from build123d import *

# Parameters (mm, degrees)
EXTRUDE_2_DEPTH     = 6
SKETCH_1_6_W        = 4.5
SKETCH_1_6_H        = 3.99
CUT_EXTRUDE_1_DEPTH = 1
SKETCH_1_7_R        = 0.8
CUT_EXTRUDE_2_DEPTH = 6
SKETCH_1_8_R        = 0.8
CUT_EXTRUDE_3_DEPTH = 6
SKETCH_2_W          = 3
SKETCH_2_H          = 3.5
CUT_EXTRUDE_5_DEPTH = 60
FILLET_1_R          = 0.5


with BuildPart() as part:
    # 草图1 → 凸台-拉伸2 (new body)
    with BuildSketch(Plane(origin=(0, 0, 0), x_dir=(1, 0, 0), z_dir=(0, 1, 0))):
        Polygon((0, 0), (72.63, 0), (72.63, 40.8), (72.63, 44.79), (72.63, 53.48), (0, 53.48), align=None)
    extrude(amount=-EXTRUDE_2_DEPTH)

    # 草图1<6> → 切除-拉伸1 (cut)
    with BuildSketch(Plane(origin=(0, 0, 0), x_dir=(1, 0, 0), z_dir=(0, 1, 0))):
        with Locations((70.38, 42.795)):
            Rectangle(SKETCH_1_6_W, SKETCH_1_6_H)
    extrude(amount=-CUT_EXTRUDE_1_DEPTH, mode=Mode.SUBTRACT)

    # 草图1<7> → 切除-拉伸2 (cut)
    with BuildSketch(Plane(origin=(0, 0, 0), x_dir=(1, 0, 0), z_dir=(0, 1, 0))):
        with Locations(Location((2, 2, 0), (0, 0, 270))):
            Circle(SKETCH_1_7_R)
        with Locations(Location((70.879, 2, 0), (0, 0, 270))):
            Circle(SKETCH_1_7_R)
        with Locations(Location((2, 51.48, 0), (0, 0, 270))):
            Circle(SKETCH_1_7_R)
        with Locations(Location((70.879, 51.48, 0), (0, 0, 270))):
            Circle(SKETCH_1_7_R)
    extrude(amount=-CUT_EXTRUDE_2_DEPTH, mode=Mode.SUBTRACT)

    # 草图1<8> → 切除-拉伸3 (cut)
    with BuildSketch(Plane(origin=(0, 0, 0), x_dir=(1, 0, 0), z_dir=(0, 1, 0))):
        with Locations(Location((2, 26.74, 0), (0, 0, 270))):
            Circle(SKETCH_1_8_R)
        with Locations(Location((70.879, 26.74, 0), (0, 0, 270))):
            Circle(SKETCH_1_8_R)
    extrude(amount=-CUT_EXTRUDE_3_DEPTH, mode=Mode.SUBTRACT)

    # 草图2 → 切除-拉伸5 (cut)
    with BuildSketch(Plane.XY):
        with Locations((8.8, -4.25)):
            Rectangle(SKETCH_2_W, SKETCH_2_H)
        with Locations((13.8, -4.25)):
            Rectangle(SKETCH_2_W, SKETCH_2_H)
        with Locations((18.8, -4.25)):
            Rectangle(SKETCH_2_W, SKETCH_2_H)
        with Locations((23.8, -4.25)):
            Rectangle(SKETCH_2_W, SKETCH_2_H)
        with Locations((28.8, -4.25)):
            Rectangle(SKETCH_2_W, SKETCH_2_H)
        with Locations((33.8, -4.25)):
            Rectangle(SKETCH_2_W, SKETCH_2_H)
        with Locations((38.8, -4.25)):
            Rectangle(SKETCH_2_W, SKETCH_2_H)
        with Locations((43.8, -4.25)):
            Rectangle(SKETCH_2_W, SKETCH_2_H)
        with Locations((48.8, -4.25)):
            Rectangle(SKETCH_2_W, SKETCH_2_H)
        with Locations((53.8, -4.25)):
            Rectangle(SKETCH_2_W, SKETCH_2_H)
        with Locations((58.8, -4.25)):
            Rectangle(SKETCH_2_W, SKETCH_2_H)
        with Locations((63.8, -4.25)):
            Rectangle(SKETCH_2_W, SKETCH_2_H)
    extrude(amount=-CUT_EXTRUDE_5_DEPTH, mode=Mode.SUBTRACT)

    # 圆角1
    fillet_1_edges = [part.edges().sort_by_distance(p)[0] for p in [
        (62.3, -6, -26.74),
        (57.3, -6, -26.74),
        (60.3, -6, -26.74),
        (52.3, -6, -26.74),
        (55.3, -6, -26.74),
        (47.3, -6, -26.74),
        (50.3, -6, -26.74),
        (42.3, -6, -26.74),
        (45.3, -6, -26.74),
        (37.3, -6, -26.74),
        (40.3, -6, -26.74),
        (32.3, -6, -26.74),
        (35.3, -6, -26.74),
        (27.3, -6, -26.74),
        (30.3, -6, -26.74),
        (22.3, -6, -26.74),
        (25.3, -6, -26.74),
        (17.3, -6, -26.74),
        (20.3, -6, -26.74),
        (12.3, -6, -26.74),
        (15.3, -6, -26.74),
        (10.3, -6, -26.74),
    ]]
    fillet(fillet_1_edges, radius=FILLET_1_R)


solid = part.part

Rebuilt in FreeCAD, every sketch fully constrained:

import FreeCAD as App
import Part
import Sketcher
from FreeCAD import Vector
Q = App.Units.Quantity


def edges_at(feature, points):
    """Names of the edges that pass closest to the given points."""
    edges = feature.Shape.Edges
    near = lambda p: min(range(len(edges)), key=lambda i: edges[i].distToShape(Part.Vertex(*p))[0])
    return sorted({f"Edge{near(p) + 1}" for p in points})


def add_polygon(sketch, points):
    """Adds a closed chain of lines whose ends are joined by coincident constraints."""
    first, n = sketch.GeometryCount, len(points)
    for a, b in zip(points, points[1:] + points[:1]):
        sketch.addGeometry(Part.LineSegment(App.Vector(*a, 0), App.Vector(*b, 0)), False)
    for i in range(n):
        sketch.addConstraint(Sketcher.Constraint("Coincident", first + i, 2, first + (i + 1) % n, 1))

doc = App.newDocument("Part")
body = doc.addObject("PartDesign::Body", "Body")

sketch1 = doc.addObject("Sketcher::SketchObject", "Sketch")
body.addObject(sketch1)
sketch1.AttachmentSupport = (doc.XZ_Plane, [""])
sketch1.MapMode = "FlatFace"
add_polygon(sketch1, [(0, 0), (73, 0), (73, -53), (0, -53)])
sketch1.addConstraint([
    Sketcher.Constraint("Horizontal", 0),
    Sketcher.Constraint("Vertical", 1),
    Sketcher.Constraint("Horizontal", 2),
    Sketcher.Constraint("Vertical", 3),
    Sketcher.Constraint("Coincident", 3, 2, -1, 1),
    Sketcher.Constraint("DistanceX", 0, 1, 0, 2, Q("72.63 mm")),
    Sketcher.Constraint("DistanceY", 1, 2, 1, 1, Q("53.48 mm")),
])
pad1 = doc.addObject("PartDesign::Pad", "Pad")
body.addObject(pad1)
pad1.Profile = sketch1
pad1.Length = 6

sketch2 = doc.addObject("Sketcher::SketchObject", "Sketch001")
body.addObject(sketch2)
sketch2.AttachmentSupport = (doc.XZ_Plane, [""])
sketch2.MapMode = "FlatFace"
add_polygon(sketch2, [(68.1, -44.8), (68.1, -40.8), (72.6, -40.8), (72.6, -44.8)])
sketch2.addConstraint([
    Sketcher.Constraint("Vertical", 0),
    Sketcher.Constraint("Horizontal", 1),
    Sketcher.Constraint("Vertical", 2),
    Sketcher.Constraint("Horizontal", 3),
    Sketcher.Constraint("DistanceX", 1, 1, 1, 2, Q("4.5 mm")),
    Sketcher.Constraint("DistanceY", 0, 1, 0, 2, Q("3.99 mm")),
    Sketcher.Constraint("DistanceY", 0, 2, -1, 1, Q("40.8 mm")),
    Sketcher.Constraint("DistanceX", -1, 1, 0, 2, Q("68.13 mm")),
])
pocket1 = doc.addObject("PartDesign::Pocket", "Pocket")
body.addObject(pocket1)
pocket1.Profile = sketch2
pocket1.Length = 1
pocket1.Reversed = True

sketch3 = doc.addObject("Sketcher::SketchObject", "Sketch002")
body.addObject(sketch3)
sketch3.AttachmentSupport = (doc.XZ_Plane, [""])
sketch3.MapMode = "FlatFace"
sketch3.addGeometry([
    Part.Circle(Vector(2, -2, 0), Vector(0, 0, 1), 0.8),
    Part.Circle(Vector(70.9, -2, 0), Vector(0, 0, 1), 0.8),
    Part.Circle(Vector(2, -51.5, 0), Vector(0, 0, 1), 0.8),
    Part.Circle(Vector(70.9, -51.5, 0), Vector(0, 0, 1), 0.8),
], False)
sketch3.addConstraint([
    Sketcher.Constraint("Equal", 0, 1),
    Sketcher.Constraint("Equal", 1, 2),
    Sketcher.Constraint("Equal", 2, 3),
    Sketcher.Constraint("Horizontal", 0, 3, 1, 3),
    Sketcher.Constraint("Horizontal", 2, 3, 3, 3),
    Sketcher.Constraint("Vertical", 0, 3, 2, 3),
    Sketcher.Constraint("Vertical", 1, 3, 3, 3),
    Sketcher.Constraint("Diameter", 0, Q("1.6 mm")),
    Sketcher.Constraint("DistanceX", -1, 1, 0, 3, Q("2 mm")),
    Sketcher.Constraint("DistanceY", 0, 3, -1, 1, Q("2 mm")),
    Sketcher.Constraint("DistanceY", 2, 3, -1, 1, Q("51.48 mm")),
    Sketcher.Constraint("DistanceX", -1, 1, 1, 3, Q("70.879 mm")),
])
pocket2 = doc.addObject("PartDesign::Pocket", "Pocket001")
body.addObject(pocket2)
pocket2.Profile = sketch3
pocket2.Length = 6
pocket2.Reversed = True

sketch4 = doc.addObject("Sketcher::SketchObject", "Sketch003")
body.addObject(sketch4)
sketch4.AttachmentSupport = (doc.XZ_Plane, [""])
sketch4.MapMode = "FlatFace"
sketch4.addGeometry([
    Part.Circle(Vector(2, -26.7, 0), Vector(0, 0, 1), 0.8),
    Part.Circle(Vector(70.9, -26.7, 0), Vector(0, 0, 1), 0.8),
], False)
sketch4.addConstraint([
    Sketcher.Constraint("Equal", 0, 1),
    Sketcher.Constraint("Horizontal", 0, 3, 1, 3),
    Sketcher.Constraint("Diameter", 0, Q("1.6 mm")),
    Sketcher.Constraint("DistanceX", -1, 1, 0, 3, Q("2 mm")),
    Sketcher.Constraint("DistanceY", 0, 3, -1, 1, Q("26.74 mm")),
    Sketcher.Constraint("DistanceX", -1, 1, 1, 3, Q("70.879 mm")),
])
pocket3 = doc.addObject("PartDesign::Pocket", "Pocket002")
body.addObject(pocket3)
pocket3.Profile = sketch4
pocket3.Length = 6
pocket3.Reversed = True

sketch5 = doc.addObject("Sketcher::SketchObject", "Sketch004")
body.addObject(sketch5)
sketch5.AttachmentSupport = (doc.XY_Plane, [""])
sketch5.MapMode = "FlatFace"
add_polygon(sketch5, [(7.3, -2.5), (7.3, -6), (10.3, -6), (10.3, -2.5)])
add_polygon(sketch5, [(12.3, -2.5), (12.3, -6), (15.3, -6), (15.3, -2.5)])
add_polygon(sketch5, [(17.3, -2.5), (17.3, -6), (20.3, -6), (20.3, -2.5)])
add_polygon(sketch5, [(22.3, -2.5), (22.3, -6), (25.3, -6), (25.3, -2.5)])
add_polygon(sketch5, [(27.3, -2.5), (27.3, -6), (30.3, -6), (30.3, -2.5)])
add_polygon(sketch5, [(32.3, -2.5), (32.3, -6), (35.3, -6), (35.3, -2.5)])
add_polygon(sketch5, [(37.3, -2.5), (37.3, -6), (40.3, -6), (40.3, -2.5)])
add_polygon(sketch5, [(42.3, -2.5), (42.3, -6), (45.3, -6), (45.3, -2.5)])
add_polygon(sketch5, [(47.3, -2.5), (47.3, -6), (50.3, -6), (50.3, -2.5)])
add_polygon(sketch5, [(52.3, -2.5), (52.3, -6), (55.3, -6), (55.3, -2.5)])
add_polygon(sketch5, [(57.3, -2.5), (57.3, -6), (60.3, -6), (60.3, -2.5)])
add_polygon(sketch5, [(62.3, -2.5), (62.3, -6), (65.3, -6), (65.3, -2.5)])
sketch5.addConstraint([
    Sketcher.Constraint("Vertical", 0),
    Sketcher.Constraint("Horizontal", 1),
    Sketcher.Constraint("Vertical", 2),
    Sketcher.Constraint("Horizontal", 3),
    Sketcher.Constraint("Vertical", 4),
    Sketcher.Constraint("Horizontal", 5),
    Sketcher.Constraint("Vertical", 6),
    Sketcher.Constraint("Horizontal", 7),
    Sketcher.Constraint("Vertical", 8),
    Sketcher.Constraint("Horizontal", 9),
    Sketcher.Constraint("Vertical", 10),
    Sketcher.Constraint("Horizontal", 11),
    Sketcher.Constraint("Vertical", 12),
    Sketcher.Constraint("Horizontal", 13),
    Sketcher.Constraint("Vertical", 14),
    Sketcher.Constraint("Horizontal", 15),
    Sketcher.Constraint("Vertical", 16),
    Sketcher.Constraint("Horizontal", 17),
    Sketcher.Constraint("Vertical", 18),
    Sketcher.Constraint("Horizontal", 19),
    Sketcher.Constraint("Vertical", 20),
    Sketcher.Constraint("Horizontal", 21),
    Sketcher.Constraint("Vertical", 22),
    Sketcher.Constraint("Horizontal", 23),
    Sketcher.Constraint("Vertical", 24),
    Sketcher.Constraint("Horizontal", 25),
    Sketcher.Constraint("Vertical", 26),
    Sketcher.Constraint("Horizontal", 27),
    Sketcher.Constraint("Vertical", 28),
    Sketcher.Constraint("Horizontal", 29),
    Sketcher.Constraint("Vertical", 30),
    Sketcher.Constraint("Horizontal", 31),
    Sketcher.Constraint("Vertical", 32),
    Sketcher.Constraint("Horizontal", 33),
    Sketcher.Constraint("Vertical", 34),
    Sketcher.Constraint("Horizontal", 35),
    Sketcher.Constraint("Vertical", 36),
    Sketcher.Constraint("Horizontal", 37),
    Sketcher.Constraint("Vertical", 38),
    Sketcher.Constraint("Horizontal", 39),
    Sketcher.Constraint("Vertical", 40),
    Sketcher.Constraint("Horizontal", 41),
    Sketcher.Constraint("Vertical", 42),
    Sketcher.Constraint("Horizontal", 43),
    Sketcher.Constraint("Vertical", 44),
    Sketcher.Constraint("Horizontal", 45),
    Sketcher.Constraint("Vertical", 46),
    Sketcher.Constraint("Horizontal", 47),
    Sketcher.Constraint("Horizontal", 1, 2, 4, 2),
    Sketcher.Constraint("Horizontal", 3, 2, 6, 2),
    Sketcher.Constraint("Horizontal", 5, 2, 8, 2),
    Sketcher.Constraint("Horizontal", 7, 2, 10, 2),
    Sketcher.Constraint("Horizontal", 9, 2, 12, 2),
    Sketcher.Constraint("Horizontal", 11, 2, 14, 2),
    Sketcher.Constraint("Horizontal", 13, 2, 16, 2),
    Sketcher.Constraint("Horizontal", 15, 2, 18, 2),
    Sketcher.Constraint("Horizontal", 17, 2, 20, 2),
    Sketcher.Constraint("Horizontal", 19, 2, 22, 2),
    Sketcher.Constraint("Horizontal", 21, 2, 24, 2),
    Sketcher.Constraint("Horizontal", 23, 2, 26, 2),
    Sketcher.Constraint("Horizontal", 25, 2, 28, 2),
    Sketcher.Constraint("Horizontal", 27, 2, 30, 2),
    Sketcher.Constraint("Horizontal", 29, 2, 32, 2),
    Sketcher.Constraint("Horizontal", 31, 2, 34, 2),
    Sketcher.Constraint("Horizontal", 33, 2, 36, 2),
    Sketcher.Constraint("Horizontal", 35, 2, 38, 2),
    Sketcher.Constraint("Horizontal", 37, 2, 40, 2),
    Sketcher.Constraint("Horizontal", 39, 2, 42, 2),
    Sketcher.Constraint("Horizontal", 41, 2, 44, 2),
    Sketcher.Constraint("Horizontal", 43, 2, 46, 2),
    Sketcher.Constraint("Equal", 3, 5),
    Sketcher.Constraint("Equal", 7, 9),
    Sketcher.Constraint("Equal", 11, 13),
    Sketcher.Constraint("Equal", 15, 17),
    Sketcher.Constraint("Equal", 19, 21),
    Sketcher.Constraint("Equal", 23, 25),
    Sketcher.Constraint("Equal", 27, 29),
    Sketcher.Constraint("Equal", 31, 33),
    Sketcher.Constraint("Equal", 35, 37),
    Sketcher.Constraint("Equal", 39, 41),
    Sketcher.Constraint("Equal", 43, 45),
    Sketcher.Constraint("DistanceX", 1, 1, 1, 2, Q("3 mm")),
    Sketcher.Constraint("DistanceY", 0, 2, 0, 1, Q("3.5 mm")),
    Sketcher.Constraint("DistanceY", 0, 2, -1, 1, Q("6 mm")),
    Sketcher.Constraint("DistanceX", 1, 2, 4, 2, Q("2 mm")),
    Sketcher.Constraint("DistanceX", 5, 2, 8, 2, Q("2 mm")),
    Sketcher.Constraint("DistanceX", 9, 2, 12, 2, Q("2 mm")),
    Sketcher.Constraint("DistanceX", 13, 2, 16, 2, Q("2 mm")),
    Sketcher.Constraint("DistanceX", 17, 2, 20, 2, Q("2 mm")),
    Sketcher.Constraint("DistanceX", 21, 2, 24, 2, Q("2 mm")),
    Sketcher.Constraint("DistanceX", 25, 2, 28, 2, Q("2 mm")),
    Sketcher.Constraint("DistanceX", 29, 2, 32, 2, Q("2 mm")),
    Sketcher.Constraint("DistanceX", 33, 2, 36, 2, Q("2 mm")),
    Sketcher.Constraint("DistanceX", 37, 2, 40, 2, Q("2 mm")),
    Sketcher.Constraint("DistanceX", 41, 2, 44, 2, Q("2 mm")),
    Sketcher.Constraint("DistanceX", -1, 1, 0, 2, Q("7.3 mm")),
])
pocket4 = doc.addObject("PartDesign::Pocket", "Pocket003")
body.addObject(pocket4)
pocket4.Profile = sketch5
pocket4.Length = 60
doc.recompute()

fillet = doc.addObject("PartDesign::Fillet", "Fillet")
body.addObject(fillet)
fillet.Base = (pocket4, edges_at(pocket4, [
    (62.3, -6, -26.74),
    (57.3, -6, -26.74),
    (60.3, -6, -26.74),
    (52.3, -6, -26.74),
    (55.3, -6, -26.74),
    (47.3, -6, -26.74),
    (50.3, -6, -26.74),
    (42.3, -6, -26.74),
    (45.3, -6, -26.74),
    (37.3, -6, -26.74),
    (40.3, -6, -26.74),
    (32.3, -6, -26.74),
    (35.3, -6, -26.74),
    (27.3, -6, -26.74),
    (30.3, -6, -26.74),
    (22.3, -6, -26.74),
    (25.3, -6, -26.74),
    (17.3, -6, -26.74),
    (20.3, -6, -26.74),
    (12.3, -6, -26.74),
    (15.3, -6, -26.74),
    (10.3, -6, -26.74),
]))
fillet.Radius = 0.5

doc.recompute()
